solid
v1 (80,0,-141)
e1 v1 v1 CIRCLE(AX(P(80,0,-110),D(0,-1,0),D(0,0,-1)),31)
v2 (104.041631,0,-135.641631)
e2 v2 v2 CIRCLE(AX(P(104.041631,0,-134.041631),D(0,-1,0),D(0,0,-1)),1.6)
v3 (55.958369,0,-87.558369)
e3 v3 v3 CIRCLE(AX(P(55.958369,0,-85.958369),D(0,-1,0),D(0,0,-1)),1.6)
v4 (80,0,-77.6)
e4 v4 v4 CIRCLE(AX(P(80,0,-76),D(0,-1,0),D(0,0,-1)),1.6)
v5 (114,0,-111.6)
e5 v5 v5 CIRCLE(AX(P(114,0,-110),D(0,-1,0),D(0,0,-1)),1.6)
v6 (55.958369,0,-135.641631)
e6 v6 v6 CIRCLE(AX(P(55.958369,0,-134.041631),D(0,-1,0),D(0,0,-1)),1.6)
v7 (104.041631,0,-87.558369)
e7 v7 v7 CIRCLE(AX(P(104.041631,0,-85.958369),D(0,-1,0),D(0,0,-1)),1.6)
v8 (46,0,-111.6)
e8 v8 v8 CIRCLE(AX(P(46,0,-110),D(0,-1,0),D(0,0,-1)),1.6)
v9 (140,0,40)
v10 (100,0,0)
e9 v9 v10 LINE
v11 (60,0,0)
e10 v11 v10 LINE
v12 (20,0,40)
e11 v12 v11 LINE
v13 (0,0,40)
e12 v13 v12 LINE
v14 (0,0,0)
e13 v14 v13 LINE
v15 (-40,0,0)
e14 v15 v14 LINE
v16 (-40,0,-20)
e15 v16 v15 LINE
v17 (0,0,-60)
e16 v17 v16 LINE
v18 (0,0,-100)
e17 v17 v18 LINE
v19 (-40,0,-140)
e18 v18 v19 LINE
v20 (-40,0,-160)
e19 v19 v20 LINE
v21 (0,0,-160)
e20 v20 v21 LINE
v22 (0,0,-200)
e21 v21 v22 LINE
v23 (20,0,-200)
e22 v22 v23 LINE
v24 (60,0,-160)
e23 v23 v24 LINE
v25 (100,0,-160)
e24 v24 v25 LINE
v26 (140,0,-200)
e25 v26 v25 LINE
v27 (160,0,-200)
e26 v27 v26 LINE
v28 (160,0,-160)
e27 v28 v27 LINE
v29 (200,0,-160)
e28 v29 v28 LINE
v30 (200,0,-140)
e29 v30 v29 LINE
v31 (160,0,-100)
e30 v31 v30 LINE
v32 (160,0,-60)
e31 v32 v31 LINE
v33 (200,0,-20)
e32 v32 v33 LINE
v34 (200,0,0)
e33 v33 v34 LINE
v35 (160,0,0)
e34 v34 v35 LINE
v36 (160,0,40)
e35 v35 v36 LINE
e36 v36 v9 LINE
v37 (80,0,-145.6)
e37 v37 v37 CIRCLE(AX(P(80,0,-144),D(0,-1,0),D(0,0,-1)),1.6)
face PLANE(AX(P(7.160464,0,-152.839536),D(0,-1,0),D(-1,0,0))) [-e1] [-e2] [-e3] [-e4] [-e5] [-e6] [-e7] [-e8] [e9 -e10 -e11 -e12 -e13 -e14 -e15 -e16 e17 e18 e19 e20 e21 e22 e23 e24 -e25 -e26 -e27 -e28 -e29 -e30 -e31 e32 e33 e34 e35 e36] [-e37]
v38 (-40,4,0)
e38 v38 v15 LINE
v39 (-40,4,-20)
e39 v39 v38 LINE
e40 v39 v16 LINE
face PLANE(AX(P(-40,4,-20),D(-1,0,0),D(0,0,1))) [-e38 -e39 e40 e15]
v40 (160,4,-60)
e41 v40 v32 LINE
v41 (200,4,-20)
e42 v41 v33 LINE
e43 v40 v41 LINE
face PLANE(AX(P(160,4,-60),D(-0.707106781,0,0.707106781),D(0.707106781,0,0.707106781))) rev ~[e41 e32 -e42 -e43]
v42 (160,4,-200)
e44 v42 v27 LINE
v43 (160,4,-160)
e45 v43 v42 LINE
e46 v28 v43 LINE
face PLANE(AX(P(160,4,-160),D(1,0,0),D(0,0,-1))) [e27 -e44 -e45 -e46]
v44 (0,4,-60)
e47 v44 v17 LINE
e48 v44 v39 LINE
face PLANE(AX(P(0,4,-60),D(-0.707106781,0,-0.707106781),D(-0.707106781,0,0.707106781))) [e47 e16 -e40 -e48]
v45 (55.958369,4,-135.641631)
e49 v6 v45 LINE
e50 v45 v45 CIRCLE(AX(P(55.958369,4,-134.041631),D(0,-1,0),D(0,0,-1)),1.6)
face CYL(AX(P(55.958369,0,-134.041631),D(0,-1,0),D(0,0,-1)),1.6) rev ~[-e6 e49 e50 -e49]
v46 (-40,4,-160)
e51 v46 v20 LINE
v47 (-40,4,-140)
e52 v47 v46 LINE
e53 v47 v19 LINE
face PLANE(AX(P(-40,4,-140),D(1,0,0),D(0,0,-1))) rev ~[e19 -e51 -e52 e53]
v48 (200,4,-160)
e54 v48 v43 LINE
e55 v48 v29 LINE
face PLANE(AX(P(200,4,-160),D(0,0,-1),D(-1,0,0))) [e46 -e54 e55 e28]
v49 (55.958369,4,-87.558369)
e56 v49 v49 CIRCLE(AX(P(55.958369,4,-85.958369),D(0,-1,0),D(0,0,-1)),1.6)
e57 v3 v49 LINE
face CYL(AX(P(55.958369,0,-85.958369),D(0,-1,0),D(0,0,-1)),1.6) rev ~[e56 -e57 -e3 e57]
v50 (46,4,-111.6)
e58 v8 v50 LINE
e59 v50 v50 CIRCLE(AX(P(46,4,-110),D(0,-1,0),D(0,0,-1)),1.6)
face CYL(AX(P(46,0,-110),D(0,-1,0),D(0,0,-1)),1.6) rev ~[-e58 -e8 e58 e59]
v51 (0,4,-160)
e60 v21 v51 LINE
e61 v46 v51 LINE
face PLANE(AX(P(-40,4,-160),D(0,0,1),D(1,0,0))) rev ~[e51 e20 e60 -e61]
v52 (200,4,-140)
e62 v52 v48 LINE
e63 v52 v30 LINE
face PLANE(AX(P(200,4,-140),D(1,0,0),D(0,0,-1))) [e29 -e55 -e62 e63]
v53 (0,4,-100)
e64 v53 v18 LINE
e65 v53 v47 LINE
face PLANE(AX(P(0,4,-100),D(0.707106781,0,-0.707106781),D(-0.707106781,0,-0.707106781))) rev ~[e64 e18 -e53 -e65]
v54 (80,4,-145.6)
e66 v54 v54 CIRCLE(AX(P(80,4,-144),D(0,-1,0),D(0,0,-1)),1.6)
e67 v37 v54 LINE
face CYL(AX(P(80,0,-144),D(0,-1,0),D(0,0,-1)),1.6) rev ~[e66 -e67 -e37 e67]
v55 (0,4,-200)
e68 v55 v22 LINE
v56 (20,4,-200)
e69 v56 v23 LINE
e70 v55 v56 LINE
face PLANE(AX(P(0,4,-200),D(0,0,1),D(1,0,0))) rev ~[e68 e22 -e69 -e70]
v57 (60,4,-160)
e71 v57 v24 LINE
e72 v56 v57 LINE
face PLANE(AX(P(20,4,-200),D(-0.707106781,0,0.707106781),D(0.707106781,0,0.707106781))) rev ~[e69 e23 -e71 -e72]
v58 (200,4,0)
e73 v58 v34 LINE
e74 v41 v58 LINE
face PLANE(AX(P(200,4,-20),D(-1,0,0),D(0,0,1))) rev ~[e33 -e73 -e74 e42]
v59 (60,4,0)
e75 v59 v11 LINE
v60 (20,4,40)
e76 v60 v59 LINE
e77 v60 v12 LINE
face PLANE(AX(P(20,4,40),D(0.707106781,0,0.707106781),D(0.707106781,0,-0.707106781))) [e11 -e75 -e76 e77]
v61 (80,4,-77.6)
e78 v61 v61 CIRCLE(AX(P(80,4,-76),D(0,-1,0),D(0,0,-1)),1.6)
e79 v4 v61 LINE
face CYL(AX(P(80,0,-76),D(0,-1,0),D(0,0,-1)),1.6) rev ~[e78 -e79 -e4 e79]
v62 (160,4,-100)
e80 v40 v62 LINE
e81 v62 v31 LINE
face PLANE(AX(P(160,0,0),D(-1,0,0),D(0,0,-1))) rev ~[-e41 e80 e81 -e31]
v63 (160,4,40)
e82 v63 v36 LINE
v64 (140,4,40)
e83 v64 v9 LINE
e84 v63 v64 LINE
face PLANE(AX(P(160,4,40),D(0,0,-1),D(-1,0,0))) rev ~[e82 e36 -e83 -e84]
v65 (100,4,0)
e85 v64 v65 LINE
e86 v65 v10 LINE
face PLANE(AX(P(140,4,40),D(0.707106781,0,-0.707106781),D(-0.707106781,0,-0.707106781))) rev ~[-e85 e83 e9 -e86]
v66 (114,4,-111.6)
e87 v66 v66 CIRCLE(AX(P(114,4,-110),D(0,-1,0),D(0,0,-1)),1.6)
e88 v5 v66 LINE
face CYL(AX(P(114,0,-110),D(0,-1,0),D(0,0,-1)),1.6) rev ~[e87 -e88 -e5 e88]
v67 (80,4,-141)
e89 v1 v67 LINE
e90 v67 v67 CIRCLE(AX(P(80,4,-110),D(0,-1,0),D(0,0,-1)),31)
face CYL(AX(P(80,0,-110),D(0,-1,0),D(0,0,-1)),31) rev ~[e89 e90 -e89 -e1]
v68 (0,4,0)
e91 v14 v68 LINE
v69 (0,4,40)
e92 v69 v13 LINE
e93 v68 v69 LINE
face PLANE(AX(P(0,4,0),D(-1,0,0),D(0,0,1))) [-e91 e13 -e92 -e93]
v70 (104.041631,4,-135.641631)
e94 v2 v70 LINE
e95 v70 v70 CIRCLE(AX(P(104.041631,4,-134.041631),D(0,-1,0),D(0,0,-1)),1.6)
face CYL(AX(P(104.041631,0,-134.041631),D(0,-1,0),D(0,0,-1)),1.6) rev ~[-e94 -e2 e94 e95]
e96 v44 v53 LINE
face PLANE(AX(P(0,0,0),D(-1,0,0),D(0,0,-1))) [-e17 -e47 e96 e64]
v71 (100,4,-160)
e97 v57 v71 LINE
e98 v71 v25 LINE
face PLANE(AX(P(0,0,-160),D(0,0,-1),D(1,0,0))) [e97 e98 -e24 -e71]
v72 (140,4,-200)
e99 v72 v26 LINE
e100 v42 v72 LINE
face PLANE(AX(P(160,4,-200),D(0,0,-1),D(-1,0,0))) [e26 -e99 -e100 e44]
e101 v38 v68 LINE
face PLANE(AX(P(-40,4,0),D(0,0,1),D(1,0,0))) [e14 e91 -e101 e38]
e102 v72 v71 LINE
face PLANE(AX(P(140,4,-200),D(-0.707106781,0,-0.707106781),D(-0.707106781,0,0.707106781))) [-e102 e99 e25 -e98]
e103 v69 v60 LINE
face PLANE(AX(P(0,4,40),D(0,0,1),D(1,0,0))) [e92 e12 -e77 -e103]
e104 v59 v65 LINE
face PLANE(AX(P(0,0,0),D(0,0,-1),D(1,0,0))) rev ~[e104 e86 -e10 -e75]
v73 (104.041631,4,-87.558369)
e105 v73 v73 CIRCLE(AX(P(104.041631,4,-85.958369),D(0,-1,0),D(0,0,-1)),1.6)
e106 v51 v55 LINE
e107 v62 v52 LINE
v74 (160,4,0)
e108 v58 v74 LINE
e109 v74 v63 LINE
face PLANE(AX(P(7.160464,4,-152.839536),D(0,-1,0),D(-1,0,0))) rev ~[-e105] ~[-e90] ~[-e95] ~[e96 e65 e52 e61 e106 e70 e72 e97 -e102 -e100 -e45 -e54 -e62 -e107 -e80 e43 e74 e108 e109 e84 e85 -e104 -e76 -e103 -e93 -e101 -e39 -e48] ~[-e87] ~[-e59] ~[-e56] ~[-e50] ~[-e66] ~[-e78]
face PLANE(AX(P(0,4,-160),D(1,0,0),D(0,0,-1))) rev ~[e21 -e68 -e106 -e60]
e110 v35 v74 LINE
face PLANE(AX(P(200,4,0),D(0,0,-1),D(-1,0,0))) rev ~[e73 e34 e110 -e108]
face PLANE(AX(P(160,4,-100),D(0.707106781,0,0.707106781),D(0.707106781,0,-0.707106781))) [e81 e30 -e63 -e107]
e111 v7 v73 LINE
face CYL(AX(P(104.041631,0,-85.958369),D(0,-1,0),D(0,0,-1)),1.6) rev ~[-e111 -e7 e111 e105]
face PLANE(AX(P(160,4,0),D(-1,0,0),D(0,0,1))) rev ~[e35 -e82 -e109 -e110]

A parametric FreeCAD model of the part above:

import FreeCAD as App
import Part
import Sketcher

V = App.Vector


def add_polygon(sketch, points):
    """Adds a closed chain of lines whose ends are joined by coincident constraints."""
    first, n = sketch.GeometryCount, len(points)
    for a, b in zip(points, points[1:] + points[:1]):
        sketch.addGeometry(Part.LineSegment(App.Vector(*a, 0), App.Vector(*b, 0)), False)
    for i in range(n):
        sketch.addConstraint(Sketcher.Constraint("Coincident", first + i, 2, first + (i + 1) % n, 1))

doc = App.newDocument("Part")
body = doc.addObject("PartDesign::Body", "Body")

# Sketch on XZ plane
sketch1 = doc.addObject("Sketcher::SketchObject", "Sketch")
body.addObject(sketch1)
sketch1.AttachmentSupport = (doc.XZ_Plane, [""])
sketch1.MapMode = "FlatFace"
add_polygon(sketch1, [(0, -160), (0, 0), (160, 0), (160, -160)])  # lines 0-3
sketch1.addConstraint(Sketcher.Constraint("Vertical", 0))
sketch1.addConstraint(Sketcher.Constraint("Horizontal", 1))
sketch1.addConstraint(Sketcher.Constraint("Vertical", 2))
sketch1.addConstraint(Sketcher.Constraint("Horizontal", 3))
sketch1.addConstraint(Sketcher.Constraint("Coincident", 0, 2, -1, 1))
sketch1.addConstraint(Sketcher.Constraint("Equal", 3, 0))
sketch1.addConstraint(Sketcher.Constraint("DistanceX", 1, 1, 1, 2, 160.0))
pad1 = doc.addObject("PartDesign::Pad", "Pad")
body.addObject(pad1)
pad1.Profile = sketch1
pad1.Length = 4
pad1.Reversed = True

# Sketch on XZ plane
sketch2 = doc.addObject("Sketcher::SketchObject", "Sketch001")
body.addObject(sketch2)
sketch2.AttachmentSupport = (doc.XZ_Plane, [""])
sketch2.MapMode = "FlatFace"
sketch2.AttachmentOffset = App.Placement(V(0, 0, -4), App.Rotation())
add_polygon(sketch2, [(-40, -140), (0, -100), (60, -160), (20, -200), (0, -200), (0, -160), (-40, -160)])  # lines 0-6
add_polygon(sketch2, [(60, 0), (0, -60), (-40, -20), (-40, 0), (0, 0), (0, 40), (20, 40)])  # lines 7-13
add_polygon(sketch2, [(200, -20), (160, -60), (100, 0), (140, 40), (160, 40), (160, 0), (200, 0)])  # lines 14-20
add_polygon(sketch2, [(100, -160), (160, -100), (200, -140), (200, -160), (160, -160), (160, -200), (140, -200)])  # lines 21-27
sketch2.addConstraint(Sketcher.Constraint("Horizontal", 3))
sketch2.addConstraint(Sketcher.Constraint("Vertical", 4))
sketch2.addConstraint(Sketcher.Constraint("Horizontal", 5))
sketch2.addConstraint(Sketcher.Constraint("Vertical", 6))
sketch2.addConstraint(Sketcher.Constraint("Vertical", 9))
sketch2.addConstraint(Sketcher.Constraint("Horizontal", 10))
sketch2.addConstraint(Sketcher.Constraint("Vertical", 11))
sketch2.addConstraint(Sketcher.Constraint("Horizontal", 12))
sketch2.addConstraint(Sketcher.Constraint("Horizontal", 17))
sketch2.addConstraint(Sketcher.Constraint("Vertical", 18))
sketch2.addConstraint(Sketcher.Constraint("Horizontal", 19))
sketch2.addConstraint(Sketcher.Constraint("Vertical", 20))
sketch2.addConstraint(Sketcher.Constraint("Vertical", 23))
sketch2.addConstraint(Sketcher.Constraint("Horizontal", 24))
sketch2.addConstraint(Sketcher.Constraint("Vertical", 25))
sketch2.addConstraint(Sketcher.Constraint("Horizontal", 26))
sketch2.addConstraint(Sketcher.Constraint("Coincident", 10, 2, -1, 1))
sketch2.addConstraint(Sketcher.Constraint("PointOnObject", 0, 2, -2))
sketch2.addConstraint(Sketcher.Constraint("PointOnObject", 3, 2, -2))
sketch2.addConstraint(Sketcher.Constraint("PointOnObject", 7, 2, -2))
sketch2.addConstraint(Sketcher.Constraint("PointOnObject", 13, 2, -1))
sketch2.addConstraint(Sketcher.Constraint("PointOnObject", 15, 2, -1))
sketch2.addConstraint(Sketcher.Constraint("PointOnObject", 18, 2, -1))
sketch2.addConstraint(Sketcher.Constraint("Perpendicular", 0, 1))
sketch2.addConstraint(Sketcher.Constraint("Perpendicular", 1, 2))
sketch2.addConstraint(Sketcher.Constraint("Parallel", 2, 7))
sketch2.addConstraint(Sketcher.Constraint("Perpendicular", 7, 8))
sketch2.addConstraint(Sketcher.Constraint("Parallel", 8, 13))
sketch2.addConstraint(Sketcher.Constraint("Perpendicular", 13, 14))
sketch2.addConstraint(Sketcher.Constraint("Perpendicular", 14, 15))
sketch2.addConstraint(Sketcher.Constraint("Perpendicular", 15, 16))
sketch2.addConstraint(Sketcher.Constraint("Parallel", 16, 21))
sketch2.addConstraint(Sketcher.Constraint("Perpendicular", 21, 22))
sketch2.addConstraint(Sketcher.Constraint("Parallel", 22, 27))
sketch2.addConstraint(Sketcher.Constraint("Horizontal", 1, 2, 4, 2))
sketch2.addConstraint(Sketcher.Constraint("Horizontal", 7, 2, 14, 2))
sketch2.addConstraint(Sketcher.Constraint("Horizontal", 12, 2, 16, 2))
sketch2.addConstraint(Sketcher.Constraint("Horizontal", 8, 2, 20, 2))
sketch2.addConstraint(Sketcher.Constraint("Horizontal", 0, 2, 21, 2))
sketch2.addConstraint(Sketcher.Constraint("Horizontal", 6, 2, 22, 2))
sketch2.addConstraint(Sketcher.Constraint("Horizontal", 5, 2, 23, 2))
sketch2.addConstraint(Sketcher.Constraint("Horizontal", 3, 2, 25, 2))
sketch2.addConstraint(Sketcher.Constraint("Horizontal", 24, 2, 27, 2))
sketch2.addConstraint(Sketcher.Constraint("Vertical", 6, 2, 8, 2))
sketch2.addConstraint(Sketcher.Constraint("Vertical", 2, 2, 12, 2))
sketch2.addConstraint(Sketcher.Constraint("Vertical", 1, 2, 13, 2))
sketch2.addConstraint(Sketcher.Constraint("Vertical", 14, 2, 17, 2))
sketch2.addConstraint(Sketcher.Constraint("Vertical", 18, 2, 21, 2))
sketch2.addConstraint(Sketcher.Constraint("Vertical", 20, 2, 22, 2))
sketch2.addConstraint(Sketcher.Constraint("Vertical", 21, 2, 24, 2))
sketch2.addConstraint(Sketcher.Constraint("Equal", 24, 4))
sketch2.addConstraint(Sketcher.Constraint("DistanceX", 3, 2, 3, 1, 20.0))
sketch2.addConstraint(Sketcher.Constraint("DistanceX", 5, 2, 5, 1, 40.0))
sketch2.addConstraint(Sketcher.Constraint("DistanceY", 0, 2, -1, 1, 100.0))
sketch2.addConstraint(Sketcher.Constraint("DistanceX", -1, 1, 14, 2, 160.0))
pad2 = doc.addObject("PartDesign::Pad", "Pad001")
body.addObject(pad2)
pad2.Profile = sketch2
pad2.Length = 4

# Sketch on XZ plane
sketch3 = doc.addObject("Sketcher::SketchObject", "Sketch002")
body.addObject(sketch3)
sketch3.AttachmentSupport = (doc.XZ_Plane, [""])
sketch3.MapMode = "FlatFace"
sketch3.addGeometry(Part.Circle(V(80, -110, 0), V(0, 0, 1), 31), False)
sketch3.addGeometry(Part.Circle(V(80, -76, 0), V(0, 0, 1), 1.6), False)
sketch3.addGeometry(Part.Circle(V(104.041631, -85.958369, 0), V(0, 0, 1), 1.6), False)
sketch3.addGeometry(Part.Circle(V(114, -110, 0), V(0, 0, 1), 1.6), False)
sketch3.addGeometry(Part.Circle(V(104.041631, -134.041631, 0), V(0, 0, 1), 1.6), False)
sketch3.addGeometry(Part.Circle(V(80, -144, 0), V(0, 0, 1), 1.6), False)
sketch3.addGeometry(Part.Circle(V(55.958369, -134.041631, 0), V(0, 0, 1), 1.6), False)
sketch3.addGeometry(Part.Circle(V(46, -110, 0), V(0, 0, 1), 1.6), False)
sketch3.addGeometry(Part.Circle(V(55.958369, -85.958369, 0), V(0, 0, 1), 1.6), False)
sketch3.addConstraint(Sketcher.Constraint("Equal", 1, 2))
sketch3.addConstraint(Sketcher.Constraint("Equal", 2, 3))
sketch3.addConstraint(Sketcher.Constraint("Equal", 3, 4))
sketch3.addConstraint(Sketcher.Constraint("Equal", 4, 5))
sketch3.addConstraint(Sketcher.Constraint("Equal", 5, 6))
sketch3.addConstraint(Sketcher.Constraint("Equal", 6, 7))
sketch3.addConstraint(Sketcher.Constraint("Equal", 7, 8))
sketch3.addConstraint(Sketcher.Constraint("Horizontal", 0, 3, 3, 3))
sketch3.addConstraint(Sketcher.Constraint("Horizontal", 4, 3, 6, 3))
sketch3.addConstraint(Sketcher.Constraint("Horizontal", 3, 3, 7, 3))
sketch3.addConstraint(Sketcher.Constraint("Horizontal", 2, 3, 8, 3))
sketch3.addConstraint(Sketcher.Constraint("Vertical", 0, 3, 1, 3))
sketch3.addConstraint(Sketcher.Constraint("Vertical", 2, 3, 4, 3))
sketch3.addConstraint(Sketcher.Constraint("Vertical", 1, 3, 5, 3))
sketch3.addConstraint(Sketcher.Constraint("Vertical", 6, 3, 8, 3))
sketch3.addConstraint(Sketcher.Constraint("Diameter", 0, 62.0))
sketch3.addConstraint(Sketcher.Constraint("Diameter", 1, 3.2))
sketch3.addConstraint(Sketcher.Constraint("DistanceX", -1, 1, 0, 3, 80.0))
sketch3.addConstraint(Sketcher.Constraint("DistanceY", 0, 3, -1, 1, 110.0))
sketch3.addConstraint(Sketcher.Constraint("DistanceY", 1, 3, -1, 1, 76.0))
sketch3.addConstraint(Sketcher.Constraint("DistanceX", -1, 1, 3, 3, 114.0))
sketch3.addConstraint(Sketcher.Constraint("DistanceY", 5, 3, -1, 1, 144.0))
sketch3.addConstraint(Sketcher.Constraint("DistanceX", -1, 1, 7, 3, 46.0))
sketch3.addConstraint(Sketcher.Constraint("DistanceX", -1, 1, 2, 3, 104.041631))
sketch3.addConstraint(Sketcher.Constraint("DistanceY", 2, 3, -1, 1, 85.958369))
sketch3.addConstraint(Sketcher.Constraint("DistanceY", 4, 3, -1, 1, 134.041631))
sketch3.addConstraint(Sketcher.Constraint("DistanceX", -1, 1, 6, 3, 55.958369))
pocket1 = doc.addObject("PartDesign::Pocket", "Pocket")
body.addObject(pocket1)
pocket1.Profile = sketch3
pocket1.Length = 10

doc.recompute()
